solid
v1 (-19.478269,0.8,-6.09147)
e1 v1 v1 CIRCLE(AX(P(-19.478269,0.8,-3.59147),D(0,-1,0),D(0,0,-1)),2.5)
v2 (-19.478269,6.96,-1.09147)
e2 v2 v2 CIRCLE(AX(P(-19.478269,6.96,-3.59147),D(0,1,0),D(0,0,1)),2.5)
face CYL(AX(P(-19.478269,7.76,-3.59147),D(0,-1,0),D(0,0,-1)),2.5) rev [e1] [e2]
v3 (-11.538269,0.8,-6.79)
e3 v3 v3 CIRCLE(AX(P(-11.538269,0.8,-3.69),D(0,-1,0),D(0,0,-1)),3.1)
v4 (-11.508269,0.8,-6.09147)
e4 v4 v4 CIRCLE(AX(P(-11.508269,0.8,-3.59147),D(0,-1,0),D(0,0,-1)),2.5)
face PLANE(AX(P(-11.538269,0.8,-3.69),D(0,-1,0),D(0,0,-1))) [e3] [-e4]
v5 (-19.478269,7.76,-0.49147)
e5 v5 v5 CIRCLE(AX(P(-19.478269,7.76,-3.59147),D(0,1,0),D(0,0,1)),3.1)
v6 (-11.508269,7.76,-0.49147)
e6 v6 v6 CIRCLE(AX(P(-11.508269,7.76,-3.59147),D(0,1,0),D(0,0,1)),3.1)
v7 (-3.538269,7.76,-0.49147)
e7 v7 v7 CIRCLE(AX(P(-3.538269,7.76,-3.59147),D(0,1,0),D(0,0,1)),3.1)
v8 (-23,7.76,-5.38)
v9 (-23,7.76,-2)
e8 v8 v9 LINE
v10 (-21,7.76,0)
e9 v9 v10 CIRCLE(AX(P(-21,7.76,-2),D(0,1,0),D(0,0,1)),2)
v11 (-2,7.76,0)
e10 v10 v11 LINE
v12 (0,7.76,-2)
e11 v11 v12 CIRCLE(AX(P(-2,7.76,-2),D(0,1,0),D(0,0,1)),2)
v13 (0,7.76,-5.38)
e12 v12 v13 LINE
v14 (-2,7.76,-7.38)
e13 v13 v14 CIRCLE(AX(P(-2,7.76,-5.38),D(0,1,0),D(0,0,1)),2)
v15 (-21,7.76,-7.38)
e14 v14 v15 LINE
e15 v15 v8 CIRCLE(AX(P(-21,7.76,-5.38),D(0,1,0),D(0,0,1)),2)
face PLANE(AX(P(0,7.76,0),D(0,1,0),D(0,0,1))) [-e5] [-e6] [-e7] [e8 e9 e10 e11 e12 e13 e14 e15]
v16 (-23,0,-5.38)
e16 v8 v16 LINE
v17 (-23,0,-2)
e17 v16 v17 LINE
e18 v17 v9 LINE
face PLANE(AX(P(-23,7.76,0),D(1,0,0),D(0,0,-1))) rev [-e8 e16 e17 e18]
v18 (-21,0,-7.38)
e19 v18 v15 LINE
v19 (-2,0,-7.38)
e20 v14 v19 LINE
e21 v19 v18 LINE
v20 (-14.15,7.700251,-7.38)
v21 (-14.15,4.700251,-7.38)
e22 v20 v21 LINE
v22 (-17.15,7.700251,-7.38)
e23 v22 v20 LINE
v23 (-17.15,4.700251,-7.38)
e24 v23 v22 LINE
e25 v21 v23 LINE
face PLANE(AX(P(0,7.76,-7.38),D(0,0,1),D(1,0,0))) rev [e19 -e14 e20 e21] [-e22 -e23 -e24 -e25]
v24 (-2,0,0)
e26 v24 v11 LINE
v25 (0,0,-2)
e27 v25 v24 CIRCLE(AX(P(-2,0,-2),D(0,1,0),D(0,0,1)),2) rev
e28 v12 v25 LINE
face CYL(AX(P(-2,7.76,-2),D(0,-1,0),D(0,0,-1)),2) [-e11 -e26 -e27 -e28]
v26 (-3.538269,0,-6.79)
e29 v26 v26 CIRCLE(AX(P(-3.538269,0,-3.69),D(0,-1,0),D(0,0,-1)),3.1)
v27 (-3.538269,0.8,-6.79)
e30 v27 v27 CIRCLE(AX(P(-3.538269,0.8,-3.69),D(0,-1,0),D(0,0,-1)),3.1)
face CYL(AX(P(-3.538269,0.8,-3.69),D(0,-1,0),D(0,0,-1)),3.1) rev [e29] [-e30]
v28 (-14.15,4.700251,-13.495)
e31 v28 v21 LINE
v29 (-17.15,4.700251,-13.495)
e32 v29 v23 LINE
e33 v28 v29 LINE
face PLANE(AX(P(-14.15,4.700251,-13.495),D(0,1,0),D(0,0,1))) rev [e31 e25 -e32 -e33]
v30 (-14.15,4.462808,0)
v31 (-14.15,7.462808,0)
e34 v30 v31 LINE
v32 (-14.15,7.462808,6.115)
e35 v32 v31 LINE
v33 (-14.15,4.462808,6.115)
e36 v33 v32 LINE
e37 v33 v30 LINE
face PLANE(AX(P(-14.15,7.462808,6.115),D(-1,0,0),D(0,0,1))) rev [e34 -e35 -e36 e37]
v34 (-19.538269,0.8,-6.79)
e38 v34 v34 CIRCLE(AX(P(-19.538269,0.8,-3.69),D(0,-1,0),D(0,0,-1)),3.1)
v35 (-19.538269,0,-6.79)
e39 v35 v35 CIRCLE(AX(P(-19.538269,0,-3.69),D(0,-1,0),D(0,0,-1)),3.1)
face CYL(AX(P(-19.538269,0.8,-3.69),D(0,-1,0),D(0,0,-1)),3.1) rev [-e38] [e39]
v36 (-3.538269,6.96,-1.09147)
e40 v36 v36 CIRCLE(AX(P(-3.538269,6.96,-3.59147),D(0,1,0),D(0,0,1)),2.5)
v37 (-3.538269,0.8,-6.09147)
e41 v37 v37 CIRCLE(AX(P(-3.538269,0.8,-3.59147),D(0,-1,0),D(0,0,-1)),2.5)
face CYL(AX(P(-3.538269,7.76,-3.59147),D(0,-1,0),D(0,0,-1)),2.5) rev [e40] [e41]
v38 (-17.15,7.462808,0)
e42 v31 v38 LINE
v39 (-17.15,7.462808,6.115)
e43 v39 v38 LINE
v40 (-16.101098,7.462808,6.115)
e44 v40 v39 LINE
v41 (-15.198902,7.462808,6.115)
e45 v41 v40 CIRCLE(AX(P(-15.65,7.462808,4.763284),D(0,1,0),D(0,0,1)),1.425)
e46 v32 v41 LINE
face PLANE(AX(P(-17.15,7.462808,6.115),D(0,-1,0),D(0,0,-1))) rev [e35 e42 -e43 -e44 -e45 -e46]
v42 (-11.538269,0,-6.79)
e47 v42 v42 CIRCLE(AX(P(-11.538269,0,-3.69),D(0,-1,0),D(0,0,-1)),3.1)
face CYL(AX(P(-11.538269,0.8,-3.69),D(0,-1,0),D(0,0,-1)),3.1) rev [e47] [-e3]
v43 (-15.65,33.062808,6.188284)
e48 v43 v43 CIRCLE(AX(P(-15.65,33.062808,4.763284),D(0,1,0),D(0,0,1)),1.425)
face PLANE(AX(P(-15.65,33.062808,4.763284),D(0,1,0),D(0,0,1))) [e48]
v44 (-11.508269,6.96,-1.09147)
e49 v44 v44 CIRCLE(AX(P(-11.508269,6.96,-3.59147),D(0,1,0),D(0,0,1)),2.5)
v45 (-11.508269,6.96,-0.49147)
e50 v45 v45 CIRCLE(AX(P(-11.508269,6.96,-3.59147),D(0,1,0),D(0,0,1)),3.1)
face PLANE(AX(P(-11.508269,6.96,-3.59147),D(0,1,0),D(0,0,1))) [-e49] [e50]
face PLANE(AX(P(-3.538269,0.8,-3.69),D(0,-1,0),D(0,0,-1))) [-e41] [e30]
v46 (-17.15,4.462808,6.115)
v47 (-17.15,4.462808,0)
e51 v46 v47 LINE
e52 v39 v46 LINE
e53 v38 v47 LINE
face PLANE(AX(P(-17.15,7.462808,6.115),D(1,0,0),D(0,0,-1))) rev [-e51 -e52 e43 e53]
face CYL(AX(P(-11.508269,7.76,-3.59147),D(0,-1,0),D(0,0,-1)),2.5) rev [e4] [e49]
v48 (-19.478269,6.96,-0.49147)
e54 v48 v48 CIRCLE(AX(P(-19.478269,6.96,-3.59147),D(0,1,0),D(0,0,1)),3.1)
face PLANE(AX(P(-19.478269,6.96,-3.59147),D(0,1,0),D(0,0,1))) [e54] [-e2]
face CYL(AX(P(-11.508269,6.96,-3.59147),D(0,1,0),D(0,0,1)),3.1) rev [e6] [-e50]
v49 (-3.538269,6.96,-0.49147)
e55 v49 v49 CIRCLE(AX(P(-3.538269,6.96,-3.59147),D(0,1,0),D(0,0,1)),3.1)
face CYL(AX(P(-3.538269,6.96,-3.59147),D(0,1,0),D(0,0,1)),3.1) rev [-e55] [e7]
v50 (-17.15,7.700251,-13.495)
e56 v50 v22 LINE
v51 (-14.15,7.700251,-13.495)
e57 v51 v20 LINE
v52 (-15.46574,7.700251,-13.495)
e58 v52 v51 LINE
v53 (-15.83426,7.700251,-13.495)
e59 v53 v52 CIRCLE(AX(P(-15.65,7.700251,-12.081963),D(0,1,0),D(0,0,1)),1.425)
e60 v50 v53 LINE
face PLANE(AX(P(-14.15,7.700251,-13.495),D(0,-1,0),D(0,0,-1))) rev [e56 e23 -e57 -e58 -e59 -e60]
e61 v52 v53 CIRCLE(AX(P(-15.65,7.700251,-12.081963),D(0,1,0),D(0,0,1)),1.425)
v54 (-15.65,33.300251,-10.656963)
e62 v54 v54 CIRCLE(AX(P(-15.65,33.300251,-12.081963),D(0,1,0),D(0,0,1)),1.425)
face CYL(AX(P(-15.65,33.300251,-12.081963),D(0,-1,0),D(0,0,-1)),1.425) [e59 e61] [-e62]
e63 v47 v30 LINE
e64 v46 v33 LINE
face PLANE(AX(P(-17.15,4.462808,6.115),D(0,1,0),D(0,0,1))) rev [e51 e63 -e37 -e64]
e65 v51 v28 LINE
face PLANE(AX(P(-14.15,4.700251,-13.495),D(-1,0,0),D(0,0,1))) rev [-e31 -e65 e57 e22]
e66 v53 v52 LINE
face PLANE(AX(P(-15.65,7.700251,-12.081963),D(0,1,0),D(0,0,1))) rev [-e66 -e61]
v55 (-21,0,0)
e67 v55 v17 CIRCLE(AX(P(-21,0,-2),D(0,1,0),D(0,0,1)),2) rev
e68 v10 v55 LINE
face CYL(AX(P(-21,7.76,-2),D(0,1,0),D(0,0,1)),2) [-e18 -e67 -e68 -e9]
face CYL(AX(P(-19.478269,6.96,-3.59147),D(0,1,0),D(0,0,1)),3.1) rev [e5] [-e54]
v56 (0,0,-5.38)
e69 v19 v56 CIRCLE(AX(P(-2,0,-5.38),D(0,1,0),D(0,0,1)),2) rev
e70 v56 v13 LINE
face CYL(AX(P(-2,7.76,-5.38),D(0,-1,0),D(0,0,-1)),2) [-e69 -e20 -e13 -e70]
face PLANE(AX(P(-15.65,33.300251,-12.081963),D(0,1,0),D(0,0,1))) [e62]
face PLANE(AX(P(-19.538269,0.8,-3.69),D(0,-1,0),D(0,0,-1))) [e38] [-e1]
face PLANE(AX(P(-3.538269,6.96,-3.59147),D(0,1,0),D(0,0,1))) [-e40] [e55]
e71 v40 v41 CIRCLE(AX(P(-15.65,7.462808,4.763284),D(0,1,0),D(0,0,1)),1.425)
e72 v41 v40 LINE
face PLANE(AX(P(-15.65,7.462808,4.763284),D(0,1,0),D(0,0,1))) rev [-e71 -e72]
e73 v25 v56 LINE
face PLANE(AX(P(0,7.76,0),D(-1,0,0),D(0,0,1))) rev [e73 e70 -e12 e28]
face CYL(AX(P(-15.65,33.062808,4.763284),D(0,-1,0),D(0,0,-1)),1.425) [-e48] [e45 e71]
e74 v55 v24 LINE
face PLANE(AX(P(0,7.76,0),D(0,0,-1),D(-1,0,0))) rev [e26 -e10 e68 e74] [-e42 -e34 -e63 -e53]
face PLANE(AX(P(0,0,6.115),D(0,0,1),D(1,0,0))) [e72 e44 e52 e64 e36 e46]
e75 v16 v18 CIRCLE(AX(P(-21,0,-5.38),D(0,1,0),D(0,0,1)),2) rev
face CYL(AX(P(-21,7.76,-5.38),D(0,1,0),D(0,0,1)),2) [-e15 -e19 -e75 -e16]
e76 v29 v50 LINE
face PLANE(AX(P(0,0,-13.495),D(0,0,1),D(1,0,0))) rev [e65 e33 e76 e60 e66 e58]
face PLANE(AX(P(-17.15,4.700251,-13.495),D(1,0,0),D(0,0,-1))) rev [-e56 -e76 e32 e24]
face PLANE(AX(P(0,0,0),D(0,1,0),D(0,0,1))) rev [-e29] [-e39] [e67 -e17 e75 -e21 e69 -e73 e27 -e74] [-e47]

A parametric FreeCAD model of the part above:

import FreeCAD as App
import Part
import Sketcher


def edges_at(feature, points):
    """Names of the edges that pass closest to the given points."""
    edges = feature.Shape.Edges
    near = lambda p: min(range(len(edges)), key=lambda i: edges[i].distToShape(Part.Vertex(*p))[0])
    return sorted({f"Edge{near(p) + 1}" for p in points})


def add_polygon(sketch, points):
    """Adds a closed chain of lines whose ends are joined by coincident constraints."""
    first, n = sketch.GeometryCount, len(points)
    for a, b in zip(points, points[1:] + points[:1]):
        sketch.addGeometry(Part.LineSegment(App.Vector(*a, 0), App.Vector(*b, 0)), False)
    for i in range(n):
        sketch.addConstraint(Sketcher.Constraint("Coincident", first + i, 2, first + (i + 1) % n, 1))

doc = App.newDocument("Part")
params = doc.addObject("Spreadsheet::Sheet", "Params")
for row, (alias, value) in enumerate([
    ("sketch1_width", "23 mm"),
    ("sketch1_height", "7.38 mm"),
    ("pad1_length", "7.76 mm"),
    ("sketch2_diameter", "6.2 mm"),
    ("pocket1_length", "0.8 mm"),
    ("sketch3_diameter", "6.2 mm"),
    ("pocket2_length", "0.8 mm"),
    ("sketch4_diameter", "5 mm"),
    ("fillet_radius", "2 mm"),
    ("fillet2_radius", "2 mm"),
    ("fillet3_radius", "2 mm"),
    ("fillet4_radius", "2 mm"),
    ("sketch5_width", "3 mm"),
    ("pad2_length", "6.115 mm"),
    ("sketch6_diameter", "2.85 mm"),
    ("pad3_length", "25.6 mm"),
    ("sketch7_width", "3 mm"),
    ("pad4_length", "6.115 mm"),
    ("sketch8_diameter", "2.85 mm"),
    ("pad5_length", "25.6 mm"),
], start=1):
    params.set(f"A{row}", alias)
    params.set(f"B{row}", "=" + value)
    params.setAlias(f"B{row}", alias)

body = doc.addObject("PartDesign::Body", "Body")

# Sketch on XZ plane
sketch1 = body.newObject("Sketcher::SketchObject", "Sketch")
sketch1.AttachmentSupport = (doc.getObject("XZ_Plane"), [""])
sketch1.MapMode = "FlatFace"
add_polygon(sketch1, [(-23, -7), (-23, 0), (0, 0), (0, -7)])  # lines 0-3
sketch1.addConstraint([
    Sketcher.Constraint("Vertical", 0),
    Sketcher.Constraint("Horizontal", 1),
    Sketcher.Constraint("Vertical", 2),
    Sketcher.Constraint("Horizontal", 3),
    Sketcher.Constraint("Coincident", 1, 2, -1, 1),
    Sketcher.Constraint("DistanceX", 1, 1, 1, 2, 23.0),
    Sketcher.Constraint("DistanceY", 0, 1, 0, 2, 7.38),
])
sketch1.setExpression("Constraints[9]", "Params.sketch1_width")
sketch1.setExpression("Constraints[10]", "Params.sketch1_height")
pad1 = body.newObject("PartDesign::Pad", "Pad")
pad1.Profile = sketch1
pad1.setExpression("Length", "Params.pad1_length")
pad1.Reversed = True

# Sketch on XZ plane
sketch2 = body.newObject("Sketcher::SketchObject", "Sketch001")
sketch2.AttachmentSupport = (doc.getObject("XZ_Plane"), [""])
sketch2.MapMode = "FlatFace"
sketch2.addGeometry([
    Part.Circle(App.Vector(-19.5, -3.7, 0), App.Vector(0, 0, 1), 3.1),
    Part.Circle(App.Vector(-11.5, -3.7, 0), App.Vector(0, 0, 1), 3.1),
    Part.Circle(App.Vector(-3.5, -3.7, 0), App.Vector(0, 0, 1), 3.1),
], False)
sketch2.addConstraint([
    Sketcher.Constraint("Equal", 0, 1),
    Sketcher.Constraint("Equal", 1, 2),
    Sketcher.Constraint("Horizontal", 0, 3, 1, 3),
    Sketcher.Constraint("Horizontal", 1, 3, 2, 3),
    Sketcher.Constraint("Diameter", 0, 6.2),
    Sketcher.Constraint("DistanceX", 0, 3, 1, 3, 8.0),
    Sketcher.Constraint("DistanceX", 1, 3, 2, 3, 8.0),
    Sketcher.Constraint("DistanceY", 0, 3, -1, 1, 3.69),
    Sketcher.Constraint("DistanceX", 0, 3, -1, 1, 19.538269),
])
sketch2.setExpression("Constraints[4]", "Params.sketch2_diameter")
pocket1 = body.newObject("PartDesign::Pocket", "Pocket")
pocket1.Profile = sketch2
pocket1.setExpression("Length", "Params.pocket1_length")

# Sketch on XZ plane
sketch3 = body.newObject("Sketcher::SketchObject", "Sketch002")
sketch3.AttachmentSupport = (doc.getObject("XZ_Plane"), [""])
sketch3.MapMode = "FlatFace"
sketch3.AttachmentOffset = App.Placement(App.Vector(0, 0, -7.76), App.Rotation())
sketch3.addGeometry([
    Part.Circle(App.Vector(-19.5, -3.6, 0), App.Vector(0, 0, 1), 3.1),
    Part.Circle(App.Vector(-11.5, -3.6, 0), App.Vector(0, 0, 1), 3.1),
    Part.Circle(App.Vector(-3.5, -3.6, 0), App.Vector(0, 0, 1), 3.1),
], False)
sketch3.addConstraint([
    Sketcher.Constraint("Equal", 0, 1),
    Sketcher.Constraint("Equal", 1, 2),
    Sketcher.Constraint("Horizontal", 0, 3, 1, 3),
    Sketcher.Constraint("Horizontal", 1, 3, 2, 3),
    Sketcher.Constraint("Diameter", 0, 6.2),
    Sketcher.Constraint("DistanceX", 0, 3, 1, 3, 7.97),
    Sketcher.Constraint("DistanceX", 1, 3, 2, 3, 7.97),
    Sketcher.Constraint("DistanceX", 0, 3, -1, 1, 19.478269),
    Sketcher.Constraint("DistanceY", 0, 3, -1, 1, 3.59147),
])
sketch3.setExpression("Constraints[4]", "Params.sketch3_diameter")
pocket2 = body.newObject("PartDesign::Pocket", "Pocket001")
pocket2.Profile = sketch3
pocket2.setExpression("Length", "Params.pocket2_length")
pocket2.Reversed = True

# Sketch on XZ plane
sketch4 = body.newObject("Sketcher::SketchObject", "Sketch003")
sketch4.AttachmentSupport = (doc.getObject("XZ_Plane"), [""])
sketch4.MapMode = "FlatFace"
sketch4.AttachmentOffset = App.Placement(App.Vector(0, 0, -0.8), App.Rotation())
sketch4.addGeometry([
    Part.Circle(App.Vector(-3.5, -3.6, 0), App.Vector(0, 0, 1), 2.5),
    Part.Circle(App.Vector(-11.5, -3.6, 0), App.Vector(0, 0, 1), 2.5),
    Part.Circle(App.Vector(-19.5, -3.6, 0), App.Vector(0, 0, 1), 2.5),
], False)
sketch4.addConstraint([
    Sketcher.Constraint("Equal", 0, 1),
    Sketcher.Constraint("Equal", 1, 2),
    Sketcher.Constraint("Horizontal", 0, 3, 1, 3),
    Sketcher.Constraint("Horizontal", 1, 3, 2, 3),
    Sketcher.Constraint("Diameter", 0, 5.0),
    Sketcher.Constraint("DistanceX", 1, 3, 0, 3, 7.97),
    Sketcher.Constraint("DistanceX", 2, 3, 1, 3, 7.97),
    Sketcher.Constraint("DistanceX", 0, 3, -1, 1, 3.538269),
    Sketcher.Constraint("DistanceY", 0, 3, -1, 1, 3.59147),
])
sketch4.setExpression("Constraints[4]", "Params.sketch4_diameter")
pocket3 = body.newObject("PartDesign::Pocket", "Pocket002")
pocket3.Profile = sketch4
pocket3.Type = "ThroughAll"
doc.recompute()

fillet = body.newObject("PartDesign::Fillet", "Fillet")
fillet.Base = (pocket3, edges_at(pocket3, [(0, 3.88, 0)]))
fillet.setExpression("Radius", "Params.fillet_radius")
doc.recompute()

fillet2 = body.newObject("PartDesign::Fillet", "Fillet001")
fillet2.Base = (fillet, edges_at(fillet, [(-23, 3.88, 0)]))
fillet2.setExpression("Radius", "Params.fillet2_radius")
doc.recompute()

fillet3 = body.newObject("PartDesign::Fillet", "Fillet002")
fillet3.Base = (fillet2, edges_at(fillet2, [(-23, 3.88, -7.38)]))
fillet3.setExpression("Radius", "Params.fillet3_radius")
doc.recompute()

fillet4 = body.newObject("PartDesign::Fillet", "Fillet003")
fillet4.Base = (fillet3, edges_at(fillet3, [(0, 3.88, -7.38)]))
fillet4.setExpression("Radius", "Params.fillet4_radius")

# Sketch on XY plane
sketch5 = body.newObject("Sketcher::SketchObject", "Sketch004")
sketch5.AttachmentSupport = (doc.getObject("XY_Plane"), [""])
sketch5.MapMode = "FlatFace"
sketch5.AttachmentOffset = App.Placement(App.Vector(0, 0, -7.38), App.Rotation())
add_polygon(sketch5, [(-14.2, 7.7), (-14.2, 4.7), (-17.1, 4.7), (-17.1, 7.7)])  # lines 0-3
sketch5.addConstraint([
    Sketcher.Constraint("Vertical", 0),
    Sketcher.Constraint("Horizontal", 1),
    Sketcher.Constraint("Vertical", 2),
    Sketcher.Constraint("Horizontal", 3),
    Sketcher.Constraint("Equal", 3, 0),
    Sketcher.Constraint("DistanceX", 1, 2, 1, 1, 3.0),
    Sketcher.Constraint("DistanceX", 0, 2, -1, 1, 14.15),
    Sketcher.Constraint("DistanceY", -1, 1, 0, 2, 4.700251),
])
sketch5.setExpression("Constraints[9]", "Params.sketch5_width")
pad2 = body.newObject("PartDesign::Pad", "Pad001")
pad2.Profile = sketch5
pad2.setExpression("Length", "Params.pad2_length")
pad2.Reversed = True

# Sketch on XZ plane
sketch6 = body.newObject("Sketcher::SketchObject", "Sketch005")
sketch6.AttachmentSupport = (doc.getObject("XZ_Plane"), [""])
sketch6.MapMode = "FlatFace"
sketch6.AttachmentOffset = App.Placement(App.Vector(0, 0, -7.700251), App.Rotation())
sketch6.addGeometry(Part.Circle(App.Vector(-15.7, -12.1, 0), App.Vector(0, 0, 1), 1.4), False)
sketch6.addConstraint([
    Sketcher.Constraint("Diameter", 0, 2.85),
    Sketcher.Constraint("DistanceX", 0, 3, -1, 1, 15.65),
    Sketcher.Constraint("DistanceY", 0, 3, -1, 1, 12.081963),
])
sketch6.setExpression("Constraints[0]", "Params.sketch6_diameter")
pad3 = body.newObject("PartDesign::Pad", "Pad002")
pad3.Profile = sketch6
pad3.setExpression("Length", "Params.pad3_length")
pad3.Reversed = True

# Sketch on XY plane
sketch7 = body.newObject("Sketcher::SketchObject", "Sketch006")
sketch7.AttachmentSupport = (doc.getObject("XY_Plane"), [""])
sketch7.MapMode = "FlatFace"
add_polygon(sketch7, [(-17.1, 7.5), (-17.1, 4.5), (-14.2, 4.5), (-14.2, 7.5)])  # lines 0-3
sketch7.addConstraint([
    Sketcher.Constraint("Vertical", 0),
    Sketcher.Constraint("Horizontal", 1),
    Sketcher.Constraint("Vertical", 2),
    Sketcher.Constraint("Horizontal", 3),
    Sketcher.Constraint("Equal", 3, 0),
    Sketcher.Constraint("DistanceX", 1, 1, 1, 2, 3.0),
    Sketcher.Constraint("DistanceX", 0, 2, -1, 1, 17.15),
    Sketcher.Constraint("DistanceY", -1, 1, 0, 2, 4.462808),
])
sketch7.setExpression("Constraints[9]", "Params.sketch7_width")
pad4 = body.newObject("PartDesign::Pad", "Pad003")
pad4.Profile = sketch7
pad4.setExpression("Length", "Params.pad4_length")

# Sketch on XZ plane
sketch8 = body.newObject("Sketcher::SketchObject", "Sketch007")
sketch8.AttachmentSupport = (doc.getObject("XZ_Plane"), [""])
sketch8.MapMode = "FlatFace"
sketch8.AttachmentOffset = App.Placement(App.Vector(0, 0, -7.462808), App.Rotation())
sketch8.addGeometry(Part.Circle(App.Vector(-15.7, 4.8, 0), App.Vector(0, 0, 1), 1.4), False)
sketch8.addConstraint([
    Sketcher.Constraint("Diameter", 0, 2.85),
    Sketcher.Constraint("DistanceX", 0, 3, -1, 1, 15.65),
    Sketcher.Constraint("DistanceY", -1, 1, 0, 3, 4.763284),
])
sketch8.setExpression("Constraints[0]", "Params.sketch8_diameter")
pad5 = body.newObject("PartDesign::Pad", "Pad004")
pad5.Profile = sketch8
pad5.setExpression("Length", "Params.pad5_length")
pad5.Reversed = True

doc.recompute()
